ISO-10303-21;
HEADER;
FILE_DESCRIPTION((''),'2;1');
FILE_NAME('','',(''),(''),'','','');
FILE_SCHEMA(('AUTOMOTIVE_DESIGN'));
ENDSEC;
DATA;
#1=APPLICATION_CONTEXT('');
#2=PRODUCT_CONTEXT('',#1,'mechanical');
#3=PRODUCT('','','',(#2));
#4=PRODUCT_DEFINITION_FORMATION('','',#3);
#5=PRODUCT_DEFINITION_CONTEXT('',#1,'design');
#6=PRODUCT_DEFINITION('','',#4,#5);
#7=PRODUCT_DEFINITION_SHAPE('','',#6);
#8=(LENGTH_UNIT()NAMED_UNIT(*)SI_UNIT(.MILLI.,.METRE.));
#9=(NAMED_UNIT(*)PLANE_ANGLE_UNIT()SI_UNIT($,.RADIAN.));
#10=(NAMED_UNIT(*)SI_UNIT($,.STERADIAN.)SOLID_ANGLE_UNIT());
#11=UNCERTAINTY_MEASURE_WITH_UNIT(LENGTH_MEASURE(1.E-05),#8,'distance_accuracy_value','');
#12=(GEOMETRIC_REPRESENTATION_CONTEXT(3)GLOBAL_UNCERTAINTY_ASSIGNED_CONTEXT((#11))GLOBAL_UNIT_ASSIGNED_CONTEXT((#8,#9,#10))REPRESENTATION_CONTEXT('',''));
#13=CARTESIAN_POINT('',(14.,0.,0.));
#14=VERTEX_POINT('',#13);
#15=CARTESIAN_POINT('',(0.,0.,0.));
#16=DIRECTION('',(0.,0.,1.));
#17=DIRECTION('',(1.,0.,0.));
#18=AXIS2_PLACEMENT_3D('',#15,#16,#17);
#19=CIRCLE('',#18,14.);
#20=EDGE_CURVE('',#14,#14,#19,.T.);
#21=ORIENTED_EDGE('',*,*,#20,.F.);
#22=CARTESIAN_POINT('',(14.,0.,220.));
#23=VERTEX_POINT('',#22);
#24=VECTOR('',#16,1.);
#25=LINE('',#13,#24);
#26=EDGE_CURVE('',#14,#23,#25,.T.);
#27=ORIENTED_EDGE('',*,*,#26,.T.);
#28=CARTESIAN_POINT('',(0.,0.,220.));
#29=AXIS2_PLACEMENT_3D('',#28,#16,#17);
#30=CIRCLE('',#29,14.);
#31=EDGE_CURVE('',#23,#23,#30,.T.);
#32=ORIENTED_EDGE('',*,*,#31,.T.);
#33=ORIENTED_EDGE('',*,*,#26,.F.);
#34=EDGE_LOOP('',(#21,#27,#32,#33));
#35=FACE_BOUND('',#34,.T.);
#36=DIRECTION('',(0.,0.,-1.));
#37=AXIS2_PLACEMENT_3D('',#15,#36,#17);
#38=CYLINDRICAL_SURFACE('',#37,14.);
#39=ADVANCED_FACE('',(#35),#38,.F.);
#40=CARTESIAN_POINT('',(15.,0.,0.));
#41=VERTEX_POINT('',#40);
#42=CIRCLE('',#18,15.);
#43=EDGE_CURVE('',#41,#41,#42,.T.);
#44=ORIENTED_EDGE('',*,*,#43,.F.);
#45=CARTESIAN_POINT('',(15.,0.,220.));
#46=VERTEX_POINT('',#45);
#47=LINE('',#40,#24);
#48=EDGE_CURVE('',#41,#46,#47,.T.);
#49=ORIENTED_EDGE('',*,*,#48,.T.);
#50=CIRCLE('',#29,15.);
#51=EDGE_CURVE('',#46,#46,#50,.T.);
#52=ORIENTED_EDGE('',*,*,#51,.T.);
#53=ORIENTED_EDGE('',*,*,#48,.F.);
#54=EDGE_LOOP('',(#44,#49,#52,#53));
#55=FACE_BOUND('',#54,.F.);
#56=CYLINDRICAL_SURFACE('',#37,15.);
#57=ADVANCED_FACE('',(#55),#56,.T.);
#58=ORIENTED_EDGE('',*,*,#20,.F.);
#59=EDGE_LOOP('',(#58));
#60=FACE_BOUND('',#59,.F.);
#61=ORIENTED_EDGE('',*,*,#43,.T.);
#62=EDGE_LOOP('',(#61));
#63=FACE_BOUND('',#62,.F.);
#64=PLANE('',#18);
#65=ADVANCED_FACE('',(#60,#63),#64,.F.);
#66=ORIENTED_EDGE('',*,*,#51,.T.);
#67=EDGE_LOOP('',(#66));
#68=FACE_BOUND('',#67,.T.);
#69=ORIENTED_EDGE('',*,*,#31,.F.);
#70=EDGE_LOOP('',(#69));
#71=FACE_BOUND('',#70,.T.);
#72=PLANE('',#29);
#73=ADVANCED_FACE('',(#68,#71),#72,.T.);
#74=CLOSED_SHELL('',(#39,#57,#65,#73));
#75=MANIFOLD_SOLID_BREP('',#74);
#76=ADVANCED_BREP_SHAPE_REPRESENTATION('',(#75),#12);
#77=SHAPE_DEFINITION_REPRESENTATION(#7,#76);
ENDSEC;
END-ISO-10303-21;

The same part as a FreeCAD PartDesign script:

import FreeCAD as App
import Part
import Sketcher

V = App.Vector
Q = App.Units.Quantity

doc = App.newDocument("Part")
body = doc.addObject("PartDesign::Body", "Body")

sketch1 = body.newObject("Sketcher::SketchObject", "Sketch")
sketch1.AttachmentSupport = (doc.getObject("XY_Plane"), [""])
sketch1.MapMode = "FlatFace"
sketch1.addGeometry(Part.Circle(V(0, 0, 0), V(0, 0, 1), 15), False)
sketch1.addGeometry(Part.Circle(V(0, 0, 0), V(0, 0, 1), 14), False)
sketch1.addConstraint(Sketcher.Constraint("Coincident", 0, 3, -1, 1))
sketch1.addConstraint(Sketcher.Constraint("Coincident", 1, 3, -1, 1))
sketch1.addConstraint(Sketcher.Constraint("Diameter", 0, Q("30 mm")))
sketch1.addConstraint(Sketcher.Constraint("Diameter", 1, Q("28 mm")))
pad1 = body.newObject("PartDesign::Pad", "Pad")
pad1.Profile = sketch1
pad1.Length = 220

doc.recompute()
